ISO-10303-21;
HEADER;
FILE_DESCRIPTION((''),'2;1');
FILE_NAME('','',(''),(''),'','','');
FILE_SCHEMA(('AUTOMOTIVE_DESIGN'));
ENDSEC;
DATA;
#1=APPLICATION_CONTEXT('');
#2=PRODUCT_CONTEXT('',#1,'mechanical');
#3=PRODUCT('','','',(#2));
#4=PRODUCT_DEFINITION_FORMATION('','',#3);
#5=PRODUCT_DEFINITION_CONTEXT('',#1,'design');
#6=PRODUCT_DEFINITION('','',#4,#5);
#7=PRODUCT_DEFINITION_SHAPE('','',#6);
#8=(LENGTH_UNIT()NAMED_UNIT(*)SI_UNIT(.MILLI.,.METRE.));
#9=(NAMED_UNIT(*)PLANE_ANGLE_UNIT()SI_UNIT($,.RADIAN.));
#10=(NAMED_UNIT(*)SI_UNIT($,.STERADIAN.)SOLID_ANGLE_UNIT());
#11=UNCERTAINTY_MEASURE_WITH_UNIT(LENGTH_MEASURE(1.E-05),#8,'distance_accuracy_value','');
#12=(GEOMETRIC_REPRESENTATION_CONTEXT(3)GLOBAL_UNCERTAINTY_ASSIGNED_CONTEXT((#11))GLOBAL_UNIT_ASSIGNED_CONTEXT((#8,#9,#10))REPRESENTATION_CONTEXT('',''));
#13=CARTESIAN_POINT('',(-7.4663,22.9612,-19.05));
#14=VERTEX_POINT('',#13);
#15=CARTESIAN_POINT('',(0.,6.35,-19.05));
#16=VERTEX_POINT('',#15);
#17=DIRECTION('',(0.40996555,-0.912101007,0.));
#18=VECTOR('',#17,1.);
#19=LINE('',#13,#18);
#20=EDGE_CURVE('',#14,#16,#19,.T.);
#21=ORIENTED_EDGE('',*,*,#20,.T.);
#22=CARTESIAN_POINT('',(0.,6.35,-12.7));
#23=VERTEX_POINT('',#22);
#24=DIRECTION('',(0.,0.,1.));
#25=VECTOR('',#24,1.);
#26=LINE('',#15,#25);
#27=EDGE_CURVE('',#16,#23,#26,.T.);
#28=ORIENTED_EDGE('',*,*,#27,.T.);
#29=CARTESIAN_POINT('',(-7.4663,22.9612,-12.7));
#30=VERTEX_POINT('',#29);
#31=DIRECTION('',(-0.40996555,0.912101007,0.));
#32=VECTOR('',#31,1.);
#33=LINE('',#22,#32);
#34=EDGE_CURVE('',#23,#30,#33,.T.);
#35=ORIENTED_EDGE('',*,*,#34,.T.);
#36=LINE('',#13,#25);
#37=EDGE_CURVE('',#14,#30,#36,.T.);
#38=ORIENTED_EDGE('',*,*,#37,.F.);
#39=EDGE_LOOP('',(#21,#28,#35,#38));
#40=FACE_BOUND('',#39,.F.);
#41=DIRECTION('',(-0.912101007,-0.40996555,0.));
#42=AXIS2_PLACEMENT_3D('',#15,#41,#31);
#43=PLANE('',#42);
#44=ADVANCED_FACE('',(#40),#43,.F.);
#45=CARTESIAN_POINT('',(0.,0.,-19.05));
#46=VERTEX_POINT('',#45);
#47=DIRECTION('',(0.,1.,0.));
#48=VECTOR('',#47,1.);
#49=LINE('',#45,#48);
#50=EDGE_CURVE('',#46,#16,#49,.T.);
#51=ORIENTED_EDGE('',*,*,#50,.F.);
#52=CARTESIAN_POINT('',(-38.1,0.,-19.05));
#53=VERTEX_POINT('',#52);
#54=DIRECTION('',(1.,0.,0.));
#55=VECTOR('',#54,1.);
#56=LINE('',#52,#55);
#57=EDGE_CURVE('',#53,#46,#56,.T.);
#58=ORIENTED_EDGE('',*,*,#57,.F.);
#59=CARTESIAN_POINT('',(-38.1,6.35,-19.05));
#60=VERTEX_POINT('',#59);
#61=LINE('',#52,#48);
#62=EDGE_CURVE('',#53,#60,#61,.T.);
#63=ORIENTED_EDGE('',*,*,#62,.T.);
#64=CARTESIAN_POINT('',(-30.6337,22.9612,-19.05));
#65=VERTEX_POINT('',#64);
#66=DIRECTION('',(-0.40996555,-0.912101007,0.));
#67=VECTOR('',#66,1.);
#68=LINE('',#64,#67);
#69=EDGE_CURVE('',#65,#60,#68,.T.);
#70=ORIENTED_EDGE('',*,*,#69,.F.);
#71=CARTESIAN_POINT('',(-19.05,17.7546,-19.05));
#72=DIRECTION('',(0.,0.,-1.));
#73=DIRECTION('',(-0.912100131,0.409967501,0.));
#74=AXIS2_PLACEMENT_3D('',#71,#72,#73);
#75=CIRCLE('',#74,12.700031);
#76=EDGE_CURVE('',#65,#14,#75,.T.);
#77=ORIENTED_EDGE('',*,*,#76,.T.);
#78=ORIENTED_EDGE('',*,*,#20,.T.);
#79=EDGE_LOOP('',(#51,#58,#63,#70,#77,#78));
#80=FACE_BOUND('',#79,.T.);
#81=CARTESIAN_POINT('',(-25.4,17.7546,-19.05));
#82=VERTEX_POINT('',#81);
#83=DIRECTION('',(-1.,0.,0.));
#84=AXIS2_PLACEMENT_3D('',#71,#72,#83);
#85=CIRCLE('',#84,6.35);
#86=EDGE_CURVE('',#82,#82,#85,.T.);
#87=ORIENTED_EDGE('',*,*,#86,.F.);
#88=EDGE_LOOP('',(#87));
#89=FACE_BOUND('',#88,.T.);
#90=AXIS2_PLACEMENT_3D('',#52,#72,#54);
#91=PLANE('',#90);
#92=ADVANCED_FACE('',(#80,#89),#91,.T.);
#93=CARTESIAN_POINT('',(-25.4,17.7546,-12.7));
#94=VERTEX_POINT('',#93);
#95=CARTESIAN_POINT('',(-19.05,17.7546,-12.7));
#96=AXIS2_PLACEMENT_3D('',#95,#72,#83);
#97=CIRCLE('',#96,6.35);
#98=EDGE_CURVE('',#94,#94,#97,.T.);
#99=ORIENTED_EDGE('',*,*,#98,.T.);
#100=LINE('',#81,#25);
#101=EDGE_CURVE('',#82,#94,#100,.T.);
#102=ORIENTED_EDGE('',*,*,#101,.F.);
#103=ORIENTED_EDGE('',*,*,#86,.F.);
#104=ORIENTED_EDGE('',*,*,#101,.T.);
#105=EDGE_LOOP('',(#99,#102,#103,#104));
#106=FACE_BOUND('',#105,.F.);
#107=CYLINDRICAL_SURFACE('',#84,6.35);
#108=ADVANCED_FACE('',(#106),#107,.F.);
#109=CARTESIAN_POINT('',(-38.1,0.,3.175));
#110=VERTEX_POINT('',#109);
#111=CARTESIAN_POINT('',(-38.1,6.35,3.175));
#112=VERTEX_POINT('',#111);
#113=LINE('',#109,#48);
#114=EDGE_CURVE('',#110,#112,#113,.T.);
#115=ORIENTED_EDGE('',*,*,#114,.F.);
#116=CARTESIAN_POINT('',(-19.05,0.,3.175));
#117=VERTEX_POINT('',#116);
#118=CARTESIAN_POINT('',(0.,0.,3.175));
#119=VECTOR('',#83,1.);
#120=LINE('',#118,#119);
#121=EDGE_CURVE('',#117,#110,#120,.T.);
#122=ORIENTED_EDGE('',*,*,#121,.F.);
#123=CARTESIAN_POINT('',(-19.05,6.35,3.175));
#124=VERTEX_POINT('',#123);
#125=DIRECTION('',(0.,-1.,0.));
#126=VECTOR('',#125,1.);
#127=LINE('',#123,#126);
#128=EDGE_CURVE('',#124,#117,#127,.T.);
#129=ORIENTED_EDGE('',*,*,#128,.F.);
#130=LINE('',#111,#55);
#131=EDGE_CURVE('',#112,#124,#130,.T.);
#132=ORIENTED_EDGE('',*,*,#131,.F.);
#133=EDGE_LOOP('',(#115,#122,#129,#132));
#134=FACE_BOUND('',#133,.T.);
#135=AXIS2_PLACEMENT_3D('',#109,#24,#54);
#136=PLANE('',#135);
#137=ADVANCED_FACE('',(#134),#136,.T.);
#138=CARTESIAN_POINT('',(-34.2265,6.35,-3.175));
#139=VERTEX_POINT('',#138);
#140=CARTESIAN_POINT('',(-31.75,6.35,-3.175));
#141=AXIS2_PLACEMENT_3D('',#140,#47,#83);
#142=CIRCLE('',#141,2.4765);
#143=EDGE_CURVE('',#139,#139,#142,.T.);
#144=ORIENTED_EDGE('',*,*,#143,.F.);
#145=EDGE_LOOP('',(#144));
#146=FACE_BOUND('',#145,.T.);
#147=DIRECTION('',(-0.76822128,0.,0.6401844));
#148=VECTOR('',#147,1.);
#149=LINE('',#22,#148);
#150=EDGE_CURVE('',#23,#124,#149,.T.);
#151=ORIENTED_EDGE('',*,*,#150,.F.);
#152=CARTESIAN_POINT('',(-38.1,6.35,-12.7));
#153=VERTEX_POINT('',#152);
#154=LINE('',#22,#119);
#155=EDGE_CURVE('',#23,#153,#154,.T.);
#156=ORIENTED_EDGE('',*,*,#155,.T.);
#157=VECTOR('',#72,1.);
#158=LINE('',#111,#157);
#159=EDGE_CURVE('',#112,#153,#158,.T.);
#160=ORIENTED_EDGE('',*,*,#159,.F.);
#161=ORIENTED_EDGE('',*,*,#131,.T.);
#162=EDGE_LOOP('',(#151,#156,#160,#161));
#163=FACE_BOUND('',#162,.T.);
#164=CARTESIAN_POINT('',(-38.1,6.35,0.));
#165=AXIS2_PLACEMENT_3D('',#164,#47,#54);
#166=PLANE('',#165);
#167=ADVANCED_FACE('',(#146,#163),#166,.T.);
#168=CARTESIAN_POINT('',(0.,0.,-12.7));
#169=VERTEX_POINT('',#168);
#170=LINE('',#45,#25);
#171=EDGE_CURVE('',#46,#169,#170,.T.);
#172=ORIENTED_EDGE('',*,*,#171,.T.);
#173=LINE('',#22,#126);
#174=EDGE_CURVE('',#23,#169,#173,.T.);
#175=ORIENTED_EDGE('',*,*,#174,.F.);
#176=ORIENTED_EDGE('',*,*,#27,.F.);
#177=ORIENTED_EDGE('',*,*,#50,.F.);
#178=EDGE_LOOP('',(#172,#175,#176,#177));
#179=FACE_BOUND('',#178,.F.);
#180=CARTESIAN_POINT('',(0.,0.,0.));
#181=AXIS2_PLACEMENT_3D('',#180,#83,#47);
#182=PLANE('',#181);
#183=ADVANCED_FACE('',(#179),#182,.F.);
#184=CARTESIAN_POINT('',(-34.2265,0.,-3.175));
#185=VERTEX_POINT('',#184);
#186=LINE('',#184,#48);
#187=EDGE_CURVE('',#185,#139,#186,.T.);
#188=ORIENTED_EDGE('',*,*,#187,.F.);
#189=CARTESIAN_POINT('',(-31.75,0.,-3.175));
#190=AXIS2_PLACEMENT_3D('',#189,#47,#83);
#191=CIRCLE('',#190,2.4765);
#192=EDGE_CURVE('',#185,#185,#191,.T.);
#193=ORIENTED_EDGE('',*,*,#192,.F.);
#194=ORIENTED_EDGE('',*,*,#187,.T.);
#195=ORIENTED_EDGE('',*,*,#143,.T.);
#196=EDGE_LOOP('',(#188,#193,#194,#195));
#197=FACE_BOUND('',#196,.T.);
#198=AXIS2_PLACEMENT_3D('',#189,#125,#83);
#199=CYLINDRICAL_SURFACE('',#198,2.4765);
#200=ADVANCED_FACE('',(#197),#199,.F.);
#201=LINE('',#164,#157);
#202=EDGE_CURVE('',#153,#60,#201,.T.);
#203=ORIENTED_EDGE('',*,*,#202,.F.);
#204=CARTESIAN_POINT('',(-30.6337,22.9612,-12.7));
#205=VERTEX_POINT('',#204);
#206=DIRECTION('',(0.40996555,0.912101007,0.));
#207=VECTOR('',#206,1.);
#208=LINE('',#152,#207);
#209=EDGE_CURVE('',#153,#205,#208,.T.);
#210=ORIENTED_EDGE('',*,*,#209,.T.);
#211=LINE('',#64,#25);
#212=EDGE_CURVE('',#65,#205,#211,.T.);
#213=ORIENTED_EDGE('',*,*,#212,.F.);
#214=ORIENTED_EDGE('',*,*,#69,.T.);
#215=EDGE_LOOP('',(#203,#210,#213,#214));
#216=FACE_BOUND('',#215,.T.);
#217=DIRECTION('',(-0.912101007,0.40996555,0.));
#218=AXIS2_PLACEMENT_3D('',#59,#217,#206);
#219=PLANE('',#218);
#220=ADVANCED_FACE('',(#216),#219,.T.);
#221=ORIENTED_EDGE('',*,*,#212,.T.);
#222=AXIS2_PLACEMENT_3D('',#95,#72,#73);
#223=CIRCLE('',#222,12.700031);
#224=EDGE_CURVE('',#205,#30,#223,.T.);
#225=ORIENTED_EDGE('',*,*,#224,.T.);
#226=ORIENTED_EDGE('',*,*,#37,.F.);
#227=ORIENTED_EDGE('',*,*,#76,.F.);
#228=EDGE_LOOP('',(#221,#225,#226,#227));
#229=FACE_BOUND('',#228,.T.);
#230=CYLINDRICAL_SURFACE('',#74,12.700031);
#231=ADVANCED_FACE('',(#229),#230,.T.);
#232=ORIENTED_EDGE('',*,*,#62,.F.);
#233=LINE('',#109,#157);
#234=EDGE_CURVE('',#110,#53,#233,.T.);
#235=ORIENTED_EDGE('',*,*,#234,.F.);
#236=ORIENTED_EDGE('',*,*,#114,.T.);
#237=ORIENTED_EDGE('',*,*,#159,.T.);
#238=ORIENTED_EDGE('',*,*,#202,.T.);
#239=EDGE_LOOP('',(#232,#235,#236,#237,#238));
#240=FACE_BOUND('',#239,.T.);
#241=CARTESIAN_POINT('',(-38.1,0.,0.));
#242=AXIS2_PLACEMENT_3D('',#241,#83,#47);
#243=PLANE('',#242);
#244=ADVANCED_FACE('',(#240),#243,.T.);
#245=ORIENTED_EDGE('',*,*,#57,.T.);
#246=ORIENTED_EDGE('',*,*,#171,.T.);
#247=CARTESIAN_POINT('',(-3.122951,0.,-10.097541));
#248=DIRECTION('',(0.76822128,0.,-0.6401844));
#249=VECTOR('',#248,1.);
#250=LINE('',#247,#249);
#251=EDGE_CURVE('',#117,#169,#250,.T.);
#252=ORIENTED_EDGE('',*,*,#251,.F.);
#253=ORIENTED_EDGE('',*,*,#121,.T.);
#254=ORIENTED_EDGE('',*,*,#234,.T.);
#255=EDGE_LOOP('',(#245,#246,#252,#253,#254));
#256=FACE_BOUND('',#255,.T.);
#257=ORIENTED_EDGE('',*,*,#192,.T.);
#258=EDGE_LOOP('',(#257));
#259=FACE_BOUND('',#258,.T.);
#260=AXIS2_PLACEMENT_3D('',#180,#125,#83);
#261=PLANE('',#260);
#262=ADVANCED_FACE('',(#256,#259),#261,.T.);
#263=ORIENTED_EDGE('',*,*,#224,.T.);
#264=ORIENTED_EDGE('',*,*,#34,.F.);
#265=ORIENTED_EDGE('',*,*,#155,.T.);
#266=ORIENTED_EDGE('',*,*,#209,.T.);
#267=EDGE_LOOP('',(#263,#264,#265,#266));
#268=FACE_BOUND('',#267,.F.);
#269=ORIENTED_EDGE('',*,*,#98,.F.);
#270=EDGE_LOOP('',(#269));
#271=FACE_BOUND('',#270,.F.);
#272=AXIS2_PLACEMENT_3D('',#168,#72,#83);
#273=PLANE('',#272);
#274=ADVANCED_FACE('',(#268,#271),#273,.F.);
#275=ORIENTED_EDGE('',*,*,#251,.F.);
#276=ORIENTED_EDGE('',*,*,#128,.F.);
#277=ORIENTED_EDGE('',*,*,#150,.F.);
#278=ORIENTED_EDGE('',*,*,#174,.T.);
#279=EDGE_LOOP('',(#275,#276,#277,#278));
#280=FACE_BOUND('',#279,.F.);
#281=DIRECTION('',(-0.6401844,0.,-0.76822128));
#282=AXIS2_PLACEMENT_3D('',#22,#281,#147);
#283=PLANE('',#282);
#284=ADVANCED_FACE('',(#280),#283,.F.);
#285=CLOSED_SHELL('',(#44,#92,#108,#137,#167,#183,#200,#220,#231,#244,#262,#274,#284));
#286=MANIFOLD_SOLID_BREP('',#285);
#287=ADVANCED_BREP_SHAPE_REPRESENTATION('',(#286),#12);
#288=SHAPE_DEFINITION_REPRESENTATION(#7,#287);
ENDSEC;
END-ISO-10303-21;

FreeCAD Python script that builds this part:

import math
import FreeCAD as App
import Part
import Sketcher
Q = App.Units.Quantity

doc = App.newDocument("Part")
body = doc.addObject("PartDesign::Body", "Body")

# Sketch on XZ plane
sketch1 = body.newObject("Sketcher::SketchObject", "Sketch")
sketch1.AttachmentSupport = (doc.getObject("XZ_Plane"), [""])
sketch1.MapMode = "FlatFace"
sketch1.addGeometry([
    Part.LineSegment(App.Vector(-38.1, 0, 0), App.Vector(0, 0, 0)),  # 0
    Part.LineSegment(App.Vector(0, 0, 0), App.Vector(0, -19.1, 0)),  # 1
    Part.LineSegment(App.Vector(0, -19.1, 0), App.Vector(-38.1, -19.1, 0)),  # 2
    Part.LineSegment(App.Vector(-38.1, -19.1, 0), App.Vector(-38.1, 0, 0)),  # 3
    Part.Circle(App.Vector(-6.3, -3.2, 0), App.Vector(0, 0, 1), 2.5),  # 4
    Part.Circle(App.Vector(-31.8, -3.2, 0), App.Vector(0, 0, 1), 2.5),  # 5
], False)
sketch1.addConstraint([
    Sketcher.Constraint("Coincident", 0, 2, 1, 1),
    Sketcher.Constraint("Coincident", 1, 2, 2, 1),
    Sketcher.Constraint("Coincident", 2, 2, 3, 1),
    Sketcher.Constraint("Coincident", 3, 2, 0, 1),
    Sketcher.Constraint("Horizontal", 0),
    Sketcher.Constraint("Vertical", 1),
    Sketcher.Constraint("Horizontal", 2),
    Sketcher.Constraint("Vertical", 3),
    Sketcher.Constraint("Coincident", 0, 2, -1, 1),
    Sketcher.Constraint("Equal", 4, 5),
    Sketcher.Constraint("Horizontal", 4, 3, 5, 3),
    Sketcher.Constraint("Diameter", 4, Q("0.195 in")),
    Sketcher.Constraint("DistanceX", 5, 3, 4, 3, Q("1 in")),
    Sketcher.Constraint("DistanceY", 1, 2, 1, 1, Q("0.75 in")),
    Sketcher.Constraint("DistanceX", 4, 3, -1, 1, Q("0.25 in")),
    Sketcher.Constraint("DistanceX", 2, 2, 5, 3, Q("0.25 in")),
    Sketcher.Constraint("DistanceY", 4, 3, -1, 1, Q("0.125 in")),
])
pad1 = body.newObject("PartDesign::Pad", "Pad")
pad1.Profile = sketch1
pad1.Length = Q("0.25 in")
pad1.Reversed = True

# Sketch on XY plane
sketch2 = body.newObject("Sketcher::SketchObject", "Sketch001")
sketch2.AttachmentSupport = (doc.getObject("XY_Plane"), [""])
sketch2.MapMode = "FlatFace"
sketch2.AttachmentOffset = App.Placement(App.Vector(0, 0, -0.75 * 25.4), App.Rotation())
sketch2.addGeometry([
    Part.LineSegment(App.Vector(-38, 6, 0), App.Vector(-31, 23, 0)),  # 0
    Part.ArcOfCircle(Part.Circle(App.Vector(-19, 18, 0), App.Vector(0, 0, 1), 13), math.radians(24), math.radians(156)),  # 1
    Part.LineSegment(App.Vector(-7, 23, 0), App.Vector(0, 6, 0)),  # 2
    Part.LineSegment(App.Vector(0, 6, 0), App.Vector(-38, 6, 0)),  # 3
    Part.Circle(App.Vector(-19, 18, 0), App.Vector(0, 0, 1), 6),  # 4
], False)
sketch2.addConstraint([
    Sketcher.Constraint("Tangent", 0, 2, 1, 2),
    Sketcher.Constraint("Tangent", 1, 1, 2, 1),
    Sketcher.Constraint("Coincident", 2, 2, 3, 1),
    Sketcher.Constraint("Coincident", 3, 2, 0, 1),
    Sketcher.Constraint("Horizontal", 3),
    Sketcher.Constraint("Coincident", 4, 3, 1, 3),
    Sketcher.Constraint("PointOnObject", 2, 2, -2),
    Sketcher.Constraint("Horizontal", 0, 2, 1, 1),
    Sketcher.Constraint("Diameter", 4, Q("0.5 in")),
    Sketcher.Constraint("Radius", 1, Q("0.5 in")),
    Sketcher.Constraint("DistanceY", -1, 1, 2, 2, Q("0.25 in")),
    Sketcher.Constraint("DistanceX", 3, 2, 3, 1, Q("1.5 in")),
    Sketcher.Constraint("Distance", 0, Q("0.717 in")),
])
pad2 = body.newObject("PartDesign::Pad", "Pad001")
pad2.Profile = sketch2
pad2.Length = Q("0.25 in")

# Sketch on XY plane
sketch3 = body.newObject("Sketcher::SketchObject", "Sketch002")
sketch3.AttachmentSupport = (doc.getObject("XY_Plane"), [""])
sketch3.MapMode = "FlatFace"
sketch3.addGeometry([
    Part.LineSegment(App.Vector(-38, 0, 0), App.Vector(0, 0, 0)),
    Part.LineSegment(App.Vector(0, 0, 0), App.Vector(0, 6, 0)),
    Part.LineSegment(App.Vector(0, 6, 0), App.Vector(-38, 6, 0)),
    Part.LineSegment(App.Vector(-38, 6, 0), App.Vector(-38, 0, 0)),
], False)
sketch3.addConstraint([
    Sketcher.Constraint("Coincident", 0, 2, 1, 1),
    Sketcher.Constraint("Coincident", 1, 2, 2, 1),
    Sketcher.Constraint("Coincident", 2, 2, 3, 1),
    Sketcher.Constraint("Coincident", 3, 2, 0, 1),
    Sketcher.Constraint("Horizontal", 0),
    Sketcher.Constraint("Vertical", 1),
    Sketcher.Constraint("Horizontal", 2),
    Sketcher.Constraint("Vertical", 3),
    Sketcher.Constraint("Coincident", 0, 2, -1, 1),
    Sketcher.Constraint("DistanceX", 0, 1, 0, 2, Q("1.5 in")),
    Sketcher.Constraint("DistanceY", 1, 1, 1, 2, Q("0.25 in")),
])
pad3 = body.newObject("PartDesign::Pad", "Pad002")
pad3.Profile = sketch3
pad3.Length = Q("0.125 in")

# Sketch on XZ plane
sketch4 = body.newObject("Sketcher::SketchObject", "Sketch003")
sketch4.AttachmentSupport = (doc.getObject("XZ_Plane"), [""])
sketch4.MapMode = "FlatFace"
sketch4.AttachmentOffset = App.Placement(App.Vector(0, 0, -0.25 * 25.4), App.Rotation())
sketch4.addGeometry([
    Part.LineSegment(App.Vector(0, 3.2, 0), App.Vector(0, -12.7, 0)),
    Part.LineSegment(App.Vector(0, -12.7, 0), App.Vector(-19.1, 3.2, 0)),
    Part.LineSegment(App.Vector(-19.1, 3.2, 0), App.Vector(0, 3.2, 0)),
    Part.Circle(App.Vector(-6.3, -3.2, 0), App.Vector(0, 0, 1), 2.5),
], False)
sketch4.addConstraint([
    Sketcher.Constraint("Coincident", 0, 2, 1, 1),
    Sketcher.Constraint("Coincident", 1, 2, 2, 1),
    Sketcher.Constraint("Coincident", 2, 2, 0, 1),
    Sketcher.Constraint("Vertical", 0),
    Sketcher.Constraint("Horizontal", 2),
    Sketcher.Constraint("PointOnObject", 0, 2, -2),
    Sketcher.Constraint("Diameter", 3, Q("0.195 in")),
    Sketcher.Constraint("DistanceX", 2, 1, 2, 2, Q("0.75 in")),
    Sketcher.Constraint("DistanceY", 0, 2, -1, 1, Q("0.5 in")),
    Sketcher.Constraint("DistanceX", 1, 2, 3, 3, Q("0.5 in")),
    Sketcher.Constraint("DistanceY", 0, 2, 0, 1, Q("0.625 in")),
    Sketcher.Constraint("DistanceY", 3, 3, 1, 2, Q("0.25 in")),
])
pocket1 = body.newObject("PartDesign::Pocket", "Pocket")
pocket1.Profile = sketch4
pocket1.Length = Q("1 in")
pocket1.Reversed = True

doc.recompute()
